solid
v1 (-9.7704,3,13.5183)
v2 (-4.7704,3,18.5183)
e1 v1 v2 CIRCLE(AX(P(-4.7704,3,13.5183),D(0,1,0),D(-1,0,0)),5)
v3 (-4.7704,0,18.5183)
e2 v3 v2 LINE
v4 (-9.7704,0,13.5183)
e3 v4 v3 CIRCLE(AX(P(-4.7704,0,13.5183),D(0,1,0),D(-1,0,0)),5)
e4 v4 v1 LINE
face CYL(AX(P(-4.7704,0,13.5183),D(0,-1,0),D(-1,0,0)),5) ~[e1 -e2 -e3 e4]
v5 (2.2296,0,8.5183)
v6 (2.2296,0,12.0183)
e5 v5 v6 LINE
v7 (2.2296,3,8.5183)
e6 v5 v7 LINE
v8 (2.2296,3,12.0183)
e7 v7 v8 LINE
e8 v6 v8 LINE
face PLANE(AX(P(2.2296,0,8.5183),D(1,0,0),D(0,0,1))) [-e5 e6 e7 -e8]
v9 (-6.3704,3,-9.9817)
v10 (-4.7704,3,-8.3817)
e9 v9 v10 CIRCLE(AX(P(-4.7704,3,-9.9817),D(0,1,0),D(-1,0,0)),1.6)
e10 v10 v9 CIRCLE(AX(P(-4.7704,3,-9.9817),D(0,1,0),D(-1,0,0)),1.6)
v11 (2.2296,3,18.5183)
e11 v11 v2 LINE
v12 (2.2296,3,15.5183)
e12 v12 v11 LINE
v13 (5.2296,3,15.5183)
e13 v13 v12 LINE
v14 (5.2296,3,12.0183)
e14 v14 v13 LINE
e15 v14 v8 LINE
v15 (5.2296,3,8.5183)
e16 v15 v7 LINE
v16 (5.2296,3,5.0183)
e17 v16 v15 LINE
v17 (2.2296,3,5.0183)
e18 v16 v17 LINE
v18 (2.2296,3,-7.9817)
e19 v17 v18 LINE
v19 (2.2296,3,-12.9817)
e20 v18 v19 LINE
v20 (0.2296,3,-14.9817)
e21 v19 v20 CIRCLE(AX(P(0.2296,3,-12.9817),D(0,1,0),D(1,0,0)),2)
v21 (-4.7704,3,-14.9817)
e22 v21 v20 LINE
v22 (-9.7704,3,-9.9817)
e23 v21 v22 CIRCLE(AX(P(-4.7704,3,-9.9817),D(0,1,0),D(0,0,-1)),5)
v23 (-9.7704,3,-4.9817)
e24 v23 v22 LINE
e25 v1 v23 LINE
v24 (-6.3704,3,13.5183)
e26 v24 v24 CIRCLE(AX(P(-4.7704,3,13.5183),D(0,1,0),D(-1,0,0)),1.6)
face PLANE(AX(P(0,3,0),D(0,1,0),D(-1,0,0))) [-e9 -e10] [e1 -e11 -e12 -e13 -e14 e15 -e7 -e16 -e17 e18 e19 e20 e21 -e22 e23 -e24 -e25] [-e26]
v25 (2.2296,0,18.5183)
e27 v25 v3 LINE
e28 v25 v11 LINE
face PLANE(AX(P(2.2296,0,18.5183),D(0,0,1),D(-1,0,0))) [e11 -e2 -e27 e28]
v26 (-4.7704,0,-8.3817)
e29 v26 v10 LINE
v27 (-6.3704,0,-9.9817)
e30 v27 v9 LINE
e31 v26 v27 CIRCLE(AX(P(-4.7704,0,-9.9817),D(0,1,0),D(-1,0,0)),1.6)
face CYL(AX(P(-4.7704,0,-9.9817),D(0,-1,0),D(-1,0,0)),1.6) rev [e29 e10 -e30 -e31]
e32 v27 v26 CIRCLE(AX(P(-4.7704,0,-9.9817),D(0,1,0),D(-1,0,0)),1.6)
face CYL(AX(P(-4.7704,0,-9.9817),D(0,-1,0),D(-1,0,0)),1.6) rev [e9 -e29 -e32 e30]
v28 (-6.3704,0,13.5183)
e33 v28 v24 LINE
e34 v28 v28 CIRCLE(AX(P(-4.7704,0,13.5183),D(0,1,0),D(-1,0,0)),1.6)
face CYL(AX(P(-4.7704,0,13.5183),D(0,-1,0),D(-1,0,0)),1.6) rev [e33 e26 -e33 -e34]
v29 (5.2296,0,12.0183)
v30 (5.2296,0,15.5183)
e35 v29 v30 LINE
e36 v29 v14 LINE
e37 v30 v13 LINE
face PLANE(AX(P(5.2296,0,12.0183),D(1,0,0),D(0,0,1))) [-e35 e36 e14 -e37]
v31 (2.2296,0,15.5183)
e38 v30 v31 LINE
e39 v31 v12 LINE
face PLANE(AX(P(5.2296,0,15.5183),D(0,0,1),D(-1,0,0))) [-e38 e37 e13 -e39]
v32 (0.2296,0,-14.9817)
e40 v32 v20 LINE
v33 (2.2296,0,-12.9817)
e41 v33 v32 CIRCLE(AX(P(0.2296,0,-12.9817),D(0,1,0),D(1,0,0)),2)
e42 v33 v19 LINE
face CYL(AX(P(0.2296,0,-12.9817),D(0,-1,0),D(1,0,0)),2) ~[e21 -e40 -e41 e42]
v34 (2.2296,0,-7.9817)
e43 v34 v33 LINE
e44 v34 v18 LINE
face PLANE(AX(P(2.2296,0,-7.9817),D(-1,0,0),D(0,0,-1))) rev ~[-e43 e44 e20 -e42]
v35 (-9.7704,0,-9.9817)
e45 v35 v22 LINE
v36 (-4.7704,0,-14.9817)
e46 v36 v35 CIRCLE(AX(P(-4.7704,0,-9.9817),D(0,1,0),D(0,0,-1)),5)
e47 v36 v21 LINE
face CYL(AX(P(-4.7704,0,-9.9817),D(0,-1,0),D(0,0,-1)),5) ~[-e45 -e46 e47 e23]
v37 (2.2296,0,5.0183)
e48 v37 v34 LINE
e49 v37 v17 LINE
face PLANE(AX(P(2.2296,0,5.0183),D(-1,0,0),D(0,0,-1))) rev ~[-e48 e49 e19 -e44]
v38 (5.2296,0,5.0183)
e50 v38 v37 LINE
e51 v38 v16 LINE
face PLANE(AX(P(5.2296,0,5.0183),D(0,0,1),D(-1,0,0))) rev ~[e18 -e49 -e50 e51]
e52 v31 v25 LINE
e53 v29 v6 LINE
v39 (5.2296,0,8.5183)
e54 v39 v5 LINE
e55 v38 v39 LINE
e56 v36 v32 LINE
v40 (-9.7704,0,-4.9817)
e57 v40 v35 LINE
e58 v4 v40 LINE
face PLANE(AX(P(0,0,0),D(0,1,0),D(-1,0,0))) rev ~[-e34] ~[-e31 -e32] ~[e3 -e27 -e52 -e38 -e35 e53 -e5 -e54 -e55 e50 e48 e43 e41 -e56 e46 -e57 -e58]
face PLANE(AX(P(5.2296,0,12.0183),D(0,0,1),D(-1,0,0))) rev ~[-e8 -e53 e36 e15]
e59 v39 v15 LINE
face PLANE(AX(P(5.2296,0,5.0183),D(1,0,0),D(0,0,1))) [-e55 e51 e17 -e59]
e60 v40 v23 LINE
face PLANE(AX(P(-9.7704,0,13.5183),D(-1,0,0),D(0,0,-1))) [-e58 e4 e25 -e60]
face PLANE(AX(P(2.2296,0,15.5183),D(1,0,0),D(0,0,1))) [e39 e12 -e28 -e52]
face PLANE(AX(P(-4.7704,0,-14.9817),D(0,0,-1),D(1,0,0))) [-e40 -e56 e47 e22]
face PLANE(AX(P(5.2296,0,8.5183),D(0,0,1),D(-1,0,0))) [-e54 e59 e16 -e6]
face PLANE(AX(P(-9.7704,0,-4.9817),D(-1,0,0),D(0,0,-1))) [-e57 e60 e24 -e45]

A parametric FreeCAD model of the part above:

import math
import FreeCAD as App
import Part
import Sketcher
from FreeCAD import Vector
Q = App.Units.Quantity

doc = App.newDocument("Part")
params = doc.addObject("Spreadsheet::Sheet", "Params")
for row, (alias, value) in enumerate([
    ("sketch1_radius", "5 mm"),
    ("sketch1_width", "5 mm"),
    ("sketch1_radius2", "2 mm"),
    ("sketch1_diameter", "3.2 mm"),
    ("sketch1_height", "18 mm"),
    ("pad1_length", "3 mm"),
], start=1):
    params.set(f"A{row}", alias)
    params.set(f"B{row}", "=" + value)
    params.setAlias(f"B{row}", alias)

body = doc.addObject("PartDesign::Body", "Body")

sketch1 = body.newObject("Sketcher::SketchObject", "Sketch")
sketch1.AttachmentSupport = (doc.getObject("XZ_Plane"), [""])
sketch1.MapMode = "FlatFace"
sketch1.addGeometry(Part.LineSegment(Vector(5.2, 8.5, 0), Vector(5.2, 5, 0)), False)
sketch1.addGeometry(Part.LineSegment(Vector(5.2, 5, 0), Vector(2.2, 5, 0)), False)
sketch1.addGeometry(Part.LineSegment(Vector(2.2, 5, 0), Vector(2.2, -13, 0)), False)
sketch1.addGeometry(Part.ArcOfCircle(Part.Circle(Vector(0.2, -13, 0), Vector(0, 0, 1), 2), math.radians(-90), math.radians(0)), False)
sketch1.addGeometry(Part.LineSegment(Vector(0.2, -15, 0), Vector(-4.8, -15, 0)), False)
sketch1.addGeometry(Part.ArcOfCircle(Part.Circle(Vector(-4.8, -10, 0), Vector(0, 0, 1), 5), math.radians(180), math.radians(270)), False)
sketch1.addGeometry(Part.LineSegment(Vector(-9.8, -10, 0), Vector(-9.8, 13.5, 0)), False)
sketch1.addGeometry(Part.ArcOfCircle(Part.Circle(Vector(-4.8, 13.5, 0), Vector(0, 0, 1), 5), math.radians(90), math.radians(180)), False)
sketch1.addGeometry(Part.LineSegment(Vector(-4.8, 18.5, 0), Vector(2.2, 18.5, 0)), False)
sketch1.addGeometry(Part.LineSegment(Vector(2.2, 18.5, 0), Vector(2.2, 15.5, 0)), False)
sketch1.addGeometry(Part.LineSegment(Vector(2.2, 15.5, 0), Vector(5.2, 15.5, 0)), False)
sketch1.addGeometry(Part.LineSegment(Vector(5.2, 15.5, 0), Vector(5.2, 12, 0)), False)
sketch1.addGeometry(Part.LineSegment(Vector(5.2, 12, 0), Vector(2.2, 12, 0)), False)
sketch1.addGeometry(Part.LineSegment(Vector(2.2, 12, 0), Vector(2.2, 8.5, 0)), False)
sketch1.addGeometry(Part.LineSegment(Vector(2.2, 8.5, 0), Vector(5.2, 8.5, 0)), False)
sketch1.addGeometry(Part.Circle(Vector(-4.8, -10, 0), Vector(0, 0, 1), 1.6), False)
sketch1.addGeometry(Part.Circle(Vector(-4.8, 13.5, 0), Vector(0, 0, 1), 1.6), False)
sketch1.addConstraint(Sketcher.Constraint("Coincident", 0, 2, 1, 1))
sketch1.addConstraint(Sketcher.Constraint("Coincident", 1, 2, 2, 1))
sketch1.addConstraint(Sketcher.Constraint("Tangent", 2, 2, 3, 2))
sketch1.addConstraint(Sketcher.Constraint("Tangent", 3, 1, 4, 1))
sketch1.addConstraint(Sketcher.Constraint("Tangent", 4, 2, 5, 2))
sketch1.addConstraint(Sketcher.Constraint("Tangent", 5, 1, 6, 1))
sketch1.addConstraint(Sketcher.Constraint("Tangent", 6, 2, 7, 2))
sketch1.addConstraint(Sketcher.Constraint("Tangent", 7, 1, 8, 1))
sketch1.addConstraint(Sketcher.Constraint("Coincident", 8, 2, 9, 1))
sketch1.addConstraint(Sketcher.Constraint("Coincident", 9, 2, 10, 1))
sketch1.addConstraint(Sketcher.Constraint("Coincident", 10, 2, 11, 1))
sketch1.addConstraint(Sketcher.Constraint("Coincident", 11, 2, 12, 1))
sketch1.addConstraint(Sketcher.Constraint("Coincident", 12, 2, 13, 1))
sketch1.addConstraint(Sketcher.Constraint("Coincident", 13, 2, 14, 1))
sketch1.addConstraint(Sketcher.Constraint("Coincident", 14, 2, 0, 1))
sketch1.addConstraint(Sketcher.Constraint("Vertical", 0))
sketch1.addConstraint(Sketcher.Constraint("Horizontal", 1))
sketch1.addConstraint(Sketcher.Constraint("Vertical", 2))
sketch1.addConstraint(Sketcher.Constraint("Horizontal", 4))
sketch1.addConstraint(Sketcher.Constraint("Vertical", 6))
sketch1.addConstraint(Sketcher.Constraint("Horizontal", 8))
sketch1.addConstraint(Sketcher.Constraint("Vertical", 9))
sketch1.addConstraint(Sketcher.Constraint("Horizontal", 10))
sketch1.addConstraint(Sketcher.Constraint("Vertical", 11))
sketch1.addConstraint(Sketcher.Constraint("Horizontal", 12))
sketch1.addConstraint(Sketcher.Constraint("Vertical", 13))
sketch1.addConstraint(Sketcher.Constraint("Horizontal", 14))
sketch1.addConstraint(Sketcher.Constraint("Coincident", 15, 3, 5, 3))
sketch1.addConstraint(Sketcher.Constraint("Coincident", 16, 3, 7, 3))
sketch1.addConstraint(Sketcher.Constraint("Equal", 5, 7))
sketch1.addConstraint(Sketcher.Constraint("Equal", 15, 16))
sketch1.addConstraint(Sketcher.Constraint("Vertical", 2, 2, 8, 2))
sketch1.addConstraint(Sketcher.Constraint("Vertical", 0, 2, 10, 2))
sketch1.addConstraint(Sketcher.Constraint("Vertical", 9, 2, 12, 2))
sketch1.addConstraint(Sketcher.Constraint("Equal", 14, 9))
sketch1.addConstraint(Sketcher.Constraint("Equal", 0, 11))
sketch1.addConstraint(Sketcher.Constraint("Equal", 11, 13))
sketch1.addConstraint(Sketcher.Constraint("Radius", 5, Q("5 mm")))
sketch1.addConstraint(Sketcher.Constraint("DistanceX", 4, 2, 4, 1, Q("5 mm")))
sketch1.addConstraint(Sketcher.Constraint("Radius", 3, Q("2 mm")))
sketch1.addConstraint(Sketcher.Constraint("DistanceX", 3, 3, 0, 2, Q("5 mm")))
sketch1.addConstraint(Sketcher.Constraint("Diameter", 15, Q("3.2 mm")))
sketch1.addConstraint(Sketcher.Constraint("DistanceY", 2, 2, 2, 1, Q("18 mm")))
sketch1.addConstraint(Sketcher.Constraint("DistanceY", 0, 2, 0, 1, Q("3.5 mm")))
sketch1.addConstraint(Sketcher.Constraint("DistanceX", -1, 1, 3, 3, Q("0.2296 mm")))
sketch1.addConstraint(Sketcher.Constraint("DistanceY", 3, 3, -1, 1, Q("12.9817 mm")))
sketch1.setExpression("Constraints[37]", "Params.sketch1_radius")
sketch1.setExpression("Constraints[38]", "Params.sketch1_width")
sketch1.setExpression("Constraints[39]", "Params.sketch1_radius2")
sketch1.setExpression("Constraints[41]", "Params.sketch1_diameter")
sketch1.setExpression("Constraints[42]", "Params.sketch1_height")
pad1 = body.newObject("PartDesign::Pad", "Pad")
pad1.Profile = sketch1
pad1.setExpression("Length", "Params.pad1_length")
pad1.Reversed = True

doc.recompute()
